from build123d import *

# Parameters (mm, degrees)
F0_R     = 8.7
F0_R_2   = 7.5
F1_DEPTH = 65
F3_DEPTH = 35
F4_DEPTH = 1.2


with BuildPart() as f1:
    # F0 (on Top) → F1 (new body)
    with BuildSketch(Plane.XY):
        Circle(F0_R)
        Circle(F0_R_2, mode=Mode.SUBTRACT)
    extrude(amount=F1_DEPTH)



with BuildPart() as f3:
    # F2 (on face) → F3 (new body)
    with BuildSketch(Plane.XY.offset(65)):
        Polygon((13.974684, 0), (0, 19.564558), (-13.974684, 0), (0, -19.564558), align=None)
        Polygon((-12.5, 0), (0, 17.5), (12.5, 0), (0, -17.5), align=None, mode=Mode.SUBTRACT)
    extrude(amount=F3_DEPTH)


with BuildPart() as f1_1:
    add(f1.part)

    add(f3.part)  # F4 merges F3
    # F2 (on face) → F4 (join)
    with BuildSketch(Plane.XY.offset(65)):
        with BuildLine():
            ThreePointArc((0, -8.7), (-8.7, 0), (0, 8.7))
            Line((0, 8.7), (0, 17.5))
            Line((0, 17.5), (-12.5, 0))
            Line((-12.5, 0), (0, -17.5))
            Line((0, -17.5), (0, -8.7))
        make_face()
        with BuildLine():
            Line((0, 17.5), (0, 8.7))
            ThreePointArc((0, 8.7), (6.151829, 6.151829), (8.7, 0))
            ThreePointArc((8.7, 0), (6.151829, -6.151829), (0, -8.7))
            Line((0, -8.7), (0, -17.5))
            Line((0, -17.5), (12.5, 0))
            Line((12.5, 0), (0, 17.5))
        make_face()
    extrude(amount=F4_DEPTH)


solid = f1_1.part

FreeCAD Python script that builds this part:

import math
import FreeCAD as App
import Part
import Sketcher
from FreeCAD import Vector
Q = App.Units.Quantity


def add_polygon(sketch, points):
    """Adds a closed chain of lines whose ends are joined by coincident constraints."""
    first, n = sketch.GeometryCount, len(points)
    for a, b in zip(points, points[1:] + points[:1]):
        sketch.addGeometry(Part.LineSegment(App.Vector(*a, 0), App.Vector(*b, 0)), False)
    for i in range(n):
        sketch.addConstraint(Sketcher.Constraint("Coincident", first + i, 2, first + (i + 1) % n, 1))

doc = App.newDocument("Part")
body = doc.addObject("PartDesign::Body", "Body")

sketch1 = body.newObject("Sketcher::SketchObject", "Sketch")
sketch1.AttachmentSupport = (doc.getObject("XY_Plane"), [""])
sketch1.MapMode = "FlatFace"
sketch1.addGeometry([
    Part.Circle(Vector(0, 0, 0), Vector(0, 0, 1), 9),
    Part.Circle(Vector(0, 0, 0), Vector(0, 0, 1), 8),
], False)
sketch1.addConstraint([
    Sketcher.Constraint("Coincident", 0, 3, -1, 1),
    Sketcher.Constraint("Coincident", 1, 3, -1, 1),
    Sketcher.Constraint("Diameter", 1, Q("15 mm")),
    Sketcher.Constraint("Diameter", 0, Q("17.4 mm")),
])
pad1 = body.newObject("PartDesign::Pad", "Pad")
pad1.Profile = sketch1
pad1.Length = 65
body2 = doc.addObject("PartDesign::Body", "Body001")

sketch2 = body2.newObject("Sketcher::SketchObject", "Sketch001")
sketch2.AttachmentSupport = (doc.getObject("XY_Plane001"), [""])
sketch2.MapMode = "FlatFace"
sketch2.AttachmentOffset = App.Placement(Vector(0, 0, 65), App.Rotation())
add_polygon(sketch2, [(14, 0), (0, 20), (-14, 0), (0, -20)])
add_polygon(sketch2, [(0, -18), (-12, 0), (0, 18), (12, 0)])
sketch2.addConstraint([
    Sketcher.Constraint("Symmetric", 0, 2, 2, 2, -1, 1),
    Sketcher.Constraint("Symmetric", 1, 2, 3, 2, -1, 1),
    Sketcher.Constraint("Symmetric", 4, 2, 6, 2, -1, 1),
    Sketcher.Constraint("Symmetric", 5, 2, 7, 2, -1, 1),
    Sketcher.Constraint("PointOnObject", 0, 2, -2),
    Sketcher.Constraint("PointOnObject", 1, 2, -1),
    Sketcher.Constraint("PointOnObject", 4, 2, -1),
    Sketcher.Constraint("PointOnObject", 5, 2, -2),
    Sketcher.Constraint("Parallel", 2, 4),
    Sketcher.Constraint("DistanceX", 4, 2, 6, 2, Q("25 mm")),
    Sketcher.Constraint("DistanceY", -1, 1, 5, 2, Q("17.5 mm")),
    Sketcher.Constraint("DistanceY", -1, 1, 0, 2, Q("19.564558 mm")),
])
pad2 = body2.newObject("PartDesign::Pad", "Pad001")
pad2.Profile = sketch2
pad2.Length = 35
body.AllowCompound = True
doc.recompute()

boolean = body.newObject("PartDesign::Boolean", "Boolean")
boolean.Type = "Fuse"
boolean.addObjects([body2])

sketch3 = body.newObject("Sketcher::SketchObject", "Sketch002")
sketch3.AttachmentSupport = (doc.getObject("XY_Plane"), [""])
sketch3.MapMode = "FlatFace"
sketch3.AttachmentOffset = App.Placement(Vector(0, 0, 65), App.Rotation())
add_polygon(sketch3, [(0, 18), (-12, 0), (0, -18), (12, 0)])
sketch3.addGeometry(Part.ArcOfCircle(Part.Circle(Vector(0, 0, 0), Vector(0, 0, 1), 9), math.radians(90), math.radians(270)), False)
sketch3.addGeometry(Part.ArcOfCircle(Part.Circle(Vector(0, 0, 0), Vector(0, 0, 1), 9), math.radians(0), math.radians(90)), False)
sketch3.addGeometry(Part.ArcOfCircle(Part.Circle(Vector(0, 0, 0), Vector(0, 0, 1), 9), math.radians(-90), math.radians(0)), False)
sketch3.addConstraint([
    Sketcher.Constraint("Tangent", 4, 1, 5, 2),
    Sketcher.Constraint("Tangent", 5, 1, 6, 2),
    Sketcher.Constraint("Tangent", 6, 1, 4, 2),
    Sketcher.Constraint("Coincident", 4, 3, -1, 1),
    Sketcher.Constraint("Symmetric", 0, 2, 2, 2, -1, 1),
    Sketcher.Constraint("Symmetric", 1, 2, 3, 2, -1, 1),
    Sketcher.Constraint("PointOnObject", 0, 2, -1),
    Sketcher.Constraint("PointOnObject", 1, 2, -2),
    Sketcher.Constraint("PointOnObject", 4, 1, -2),
    Sketcher.Constraint("PointOnObject", 5, 1, -1),
    Sketcher.Constraint("PointOnObject", 6, 1, -2),
    Sketcher.Constraint("Radius", 4, Q("8.7 mm")),
    Sketcher.Constraint("DistanceX", 0, 2, 2, 2, Q("25 mm")),
    Sketcher.Constraint("DistanceY", 1, 2, -1, 1, Q("17.5 mm")),
])
pad3 = body.newObject("PartDesign::Pad", "Pad002")
pad3.Profile = sketch3
pad3.Length = 1.2

doc.recompute()
